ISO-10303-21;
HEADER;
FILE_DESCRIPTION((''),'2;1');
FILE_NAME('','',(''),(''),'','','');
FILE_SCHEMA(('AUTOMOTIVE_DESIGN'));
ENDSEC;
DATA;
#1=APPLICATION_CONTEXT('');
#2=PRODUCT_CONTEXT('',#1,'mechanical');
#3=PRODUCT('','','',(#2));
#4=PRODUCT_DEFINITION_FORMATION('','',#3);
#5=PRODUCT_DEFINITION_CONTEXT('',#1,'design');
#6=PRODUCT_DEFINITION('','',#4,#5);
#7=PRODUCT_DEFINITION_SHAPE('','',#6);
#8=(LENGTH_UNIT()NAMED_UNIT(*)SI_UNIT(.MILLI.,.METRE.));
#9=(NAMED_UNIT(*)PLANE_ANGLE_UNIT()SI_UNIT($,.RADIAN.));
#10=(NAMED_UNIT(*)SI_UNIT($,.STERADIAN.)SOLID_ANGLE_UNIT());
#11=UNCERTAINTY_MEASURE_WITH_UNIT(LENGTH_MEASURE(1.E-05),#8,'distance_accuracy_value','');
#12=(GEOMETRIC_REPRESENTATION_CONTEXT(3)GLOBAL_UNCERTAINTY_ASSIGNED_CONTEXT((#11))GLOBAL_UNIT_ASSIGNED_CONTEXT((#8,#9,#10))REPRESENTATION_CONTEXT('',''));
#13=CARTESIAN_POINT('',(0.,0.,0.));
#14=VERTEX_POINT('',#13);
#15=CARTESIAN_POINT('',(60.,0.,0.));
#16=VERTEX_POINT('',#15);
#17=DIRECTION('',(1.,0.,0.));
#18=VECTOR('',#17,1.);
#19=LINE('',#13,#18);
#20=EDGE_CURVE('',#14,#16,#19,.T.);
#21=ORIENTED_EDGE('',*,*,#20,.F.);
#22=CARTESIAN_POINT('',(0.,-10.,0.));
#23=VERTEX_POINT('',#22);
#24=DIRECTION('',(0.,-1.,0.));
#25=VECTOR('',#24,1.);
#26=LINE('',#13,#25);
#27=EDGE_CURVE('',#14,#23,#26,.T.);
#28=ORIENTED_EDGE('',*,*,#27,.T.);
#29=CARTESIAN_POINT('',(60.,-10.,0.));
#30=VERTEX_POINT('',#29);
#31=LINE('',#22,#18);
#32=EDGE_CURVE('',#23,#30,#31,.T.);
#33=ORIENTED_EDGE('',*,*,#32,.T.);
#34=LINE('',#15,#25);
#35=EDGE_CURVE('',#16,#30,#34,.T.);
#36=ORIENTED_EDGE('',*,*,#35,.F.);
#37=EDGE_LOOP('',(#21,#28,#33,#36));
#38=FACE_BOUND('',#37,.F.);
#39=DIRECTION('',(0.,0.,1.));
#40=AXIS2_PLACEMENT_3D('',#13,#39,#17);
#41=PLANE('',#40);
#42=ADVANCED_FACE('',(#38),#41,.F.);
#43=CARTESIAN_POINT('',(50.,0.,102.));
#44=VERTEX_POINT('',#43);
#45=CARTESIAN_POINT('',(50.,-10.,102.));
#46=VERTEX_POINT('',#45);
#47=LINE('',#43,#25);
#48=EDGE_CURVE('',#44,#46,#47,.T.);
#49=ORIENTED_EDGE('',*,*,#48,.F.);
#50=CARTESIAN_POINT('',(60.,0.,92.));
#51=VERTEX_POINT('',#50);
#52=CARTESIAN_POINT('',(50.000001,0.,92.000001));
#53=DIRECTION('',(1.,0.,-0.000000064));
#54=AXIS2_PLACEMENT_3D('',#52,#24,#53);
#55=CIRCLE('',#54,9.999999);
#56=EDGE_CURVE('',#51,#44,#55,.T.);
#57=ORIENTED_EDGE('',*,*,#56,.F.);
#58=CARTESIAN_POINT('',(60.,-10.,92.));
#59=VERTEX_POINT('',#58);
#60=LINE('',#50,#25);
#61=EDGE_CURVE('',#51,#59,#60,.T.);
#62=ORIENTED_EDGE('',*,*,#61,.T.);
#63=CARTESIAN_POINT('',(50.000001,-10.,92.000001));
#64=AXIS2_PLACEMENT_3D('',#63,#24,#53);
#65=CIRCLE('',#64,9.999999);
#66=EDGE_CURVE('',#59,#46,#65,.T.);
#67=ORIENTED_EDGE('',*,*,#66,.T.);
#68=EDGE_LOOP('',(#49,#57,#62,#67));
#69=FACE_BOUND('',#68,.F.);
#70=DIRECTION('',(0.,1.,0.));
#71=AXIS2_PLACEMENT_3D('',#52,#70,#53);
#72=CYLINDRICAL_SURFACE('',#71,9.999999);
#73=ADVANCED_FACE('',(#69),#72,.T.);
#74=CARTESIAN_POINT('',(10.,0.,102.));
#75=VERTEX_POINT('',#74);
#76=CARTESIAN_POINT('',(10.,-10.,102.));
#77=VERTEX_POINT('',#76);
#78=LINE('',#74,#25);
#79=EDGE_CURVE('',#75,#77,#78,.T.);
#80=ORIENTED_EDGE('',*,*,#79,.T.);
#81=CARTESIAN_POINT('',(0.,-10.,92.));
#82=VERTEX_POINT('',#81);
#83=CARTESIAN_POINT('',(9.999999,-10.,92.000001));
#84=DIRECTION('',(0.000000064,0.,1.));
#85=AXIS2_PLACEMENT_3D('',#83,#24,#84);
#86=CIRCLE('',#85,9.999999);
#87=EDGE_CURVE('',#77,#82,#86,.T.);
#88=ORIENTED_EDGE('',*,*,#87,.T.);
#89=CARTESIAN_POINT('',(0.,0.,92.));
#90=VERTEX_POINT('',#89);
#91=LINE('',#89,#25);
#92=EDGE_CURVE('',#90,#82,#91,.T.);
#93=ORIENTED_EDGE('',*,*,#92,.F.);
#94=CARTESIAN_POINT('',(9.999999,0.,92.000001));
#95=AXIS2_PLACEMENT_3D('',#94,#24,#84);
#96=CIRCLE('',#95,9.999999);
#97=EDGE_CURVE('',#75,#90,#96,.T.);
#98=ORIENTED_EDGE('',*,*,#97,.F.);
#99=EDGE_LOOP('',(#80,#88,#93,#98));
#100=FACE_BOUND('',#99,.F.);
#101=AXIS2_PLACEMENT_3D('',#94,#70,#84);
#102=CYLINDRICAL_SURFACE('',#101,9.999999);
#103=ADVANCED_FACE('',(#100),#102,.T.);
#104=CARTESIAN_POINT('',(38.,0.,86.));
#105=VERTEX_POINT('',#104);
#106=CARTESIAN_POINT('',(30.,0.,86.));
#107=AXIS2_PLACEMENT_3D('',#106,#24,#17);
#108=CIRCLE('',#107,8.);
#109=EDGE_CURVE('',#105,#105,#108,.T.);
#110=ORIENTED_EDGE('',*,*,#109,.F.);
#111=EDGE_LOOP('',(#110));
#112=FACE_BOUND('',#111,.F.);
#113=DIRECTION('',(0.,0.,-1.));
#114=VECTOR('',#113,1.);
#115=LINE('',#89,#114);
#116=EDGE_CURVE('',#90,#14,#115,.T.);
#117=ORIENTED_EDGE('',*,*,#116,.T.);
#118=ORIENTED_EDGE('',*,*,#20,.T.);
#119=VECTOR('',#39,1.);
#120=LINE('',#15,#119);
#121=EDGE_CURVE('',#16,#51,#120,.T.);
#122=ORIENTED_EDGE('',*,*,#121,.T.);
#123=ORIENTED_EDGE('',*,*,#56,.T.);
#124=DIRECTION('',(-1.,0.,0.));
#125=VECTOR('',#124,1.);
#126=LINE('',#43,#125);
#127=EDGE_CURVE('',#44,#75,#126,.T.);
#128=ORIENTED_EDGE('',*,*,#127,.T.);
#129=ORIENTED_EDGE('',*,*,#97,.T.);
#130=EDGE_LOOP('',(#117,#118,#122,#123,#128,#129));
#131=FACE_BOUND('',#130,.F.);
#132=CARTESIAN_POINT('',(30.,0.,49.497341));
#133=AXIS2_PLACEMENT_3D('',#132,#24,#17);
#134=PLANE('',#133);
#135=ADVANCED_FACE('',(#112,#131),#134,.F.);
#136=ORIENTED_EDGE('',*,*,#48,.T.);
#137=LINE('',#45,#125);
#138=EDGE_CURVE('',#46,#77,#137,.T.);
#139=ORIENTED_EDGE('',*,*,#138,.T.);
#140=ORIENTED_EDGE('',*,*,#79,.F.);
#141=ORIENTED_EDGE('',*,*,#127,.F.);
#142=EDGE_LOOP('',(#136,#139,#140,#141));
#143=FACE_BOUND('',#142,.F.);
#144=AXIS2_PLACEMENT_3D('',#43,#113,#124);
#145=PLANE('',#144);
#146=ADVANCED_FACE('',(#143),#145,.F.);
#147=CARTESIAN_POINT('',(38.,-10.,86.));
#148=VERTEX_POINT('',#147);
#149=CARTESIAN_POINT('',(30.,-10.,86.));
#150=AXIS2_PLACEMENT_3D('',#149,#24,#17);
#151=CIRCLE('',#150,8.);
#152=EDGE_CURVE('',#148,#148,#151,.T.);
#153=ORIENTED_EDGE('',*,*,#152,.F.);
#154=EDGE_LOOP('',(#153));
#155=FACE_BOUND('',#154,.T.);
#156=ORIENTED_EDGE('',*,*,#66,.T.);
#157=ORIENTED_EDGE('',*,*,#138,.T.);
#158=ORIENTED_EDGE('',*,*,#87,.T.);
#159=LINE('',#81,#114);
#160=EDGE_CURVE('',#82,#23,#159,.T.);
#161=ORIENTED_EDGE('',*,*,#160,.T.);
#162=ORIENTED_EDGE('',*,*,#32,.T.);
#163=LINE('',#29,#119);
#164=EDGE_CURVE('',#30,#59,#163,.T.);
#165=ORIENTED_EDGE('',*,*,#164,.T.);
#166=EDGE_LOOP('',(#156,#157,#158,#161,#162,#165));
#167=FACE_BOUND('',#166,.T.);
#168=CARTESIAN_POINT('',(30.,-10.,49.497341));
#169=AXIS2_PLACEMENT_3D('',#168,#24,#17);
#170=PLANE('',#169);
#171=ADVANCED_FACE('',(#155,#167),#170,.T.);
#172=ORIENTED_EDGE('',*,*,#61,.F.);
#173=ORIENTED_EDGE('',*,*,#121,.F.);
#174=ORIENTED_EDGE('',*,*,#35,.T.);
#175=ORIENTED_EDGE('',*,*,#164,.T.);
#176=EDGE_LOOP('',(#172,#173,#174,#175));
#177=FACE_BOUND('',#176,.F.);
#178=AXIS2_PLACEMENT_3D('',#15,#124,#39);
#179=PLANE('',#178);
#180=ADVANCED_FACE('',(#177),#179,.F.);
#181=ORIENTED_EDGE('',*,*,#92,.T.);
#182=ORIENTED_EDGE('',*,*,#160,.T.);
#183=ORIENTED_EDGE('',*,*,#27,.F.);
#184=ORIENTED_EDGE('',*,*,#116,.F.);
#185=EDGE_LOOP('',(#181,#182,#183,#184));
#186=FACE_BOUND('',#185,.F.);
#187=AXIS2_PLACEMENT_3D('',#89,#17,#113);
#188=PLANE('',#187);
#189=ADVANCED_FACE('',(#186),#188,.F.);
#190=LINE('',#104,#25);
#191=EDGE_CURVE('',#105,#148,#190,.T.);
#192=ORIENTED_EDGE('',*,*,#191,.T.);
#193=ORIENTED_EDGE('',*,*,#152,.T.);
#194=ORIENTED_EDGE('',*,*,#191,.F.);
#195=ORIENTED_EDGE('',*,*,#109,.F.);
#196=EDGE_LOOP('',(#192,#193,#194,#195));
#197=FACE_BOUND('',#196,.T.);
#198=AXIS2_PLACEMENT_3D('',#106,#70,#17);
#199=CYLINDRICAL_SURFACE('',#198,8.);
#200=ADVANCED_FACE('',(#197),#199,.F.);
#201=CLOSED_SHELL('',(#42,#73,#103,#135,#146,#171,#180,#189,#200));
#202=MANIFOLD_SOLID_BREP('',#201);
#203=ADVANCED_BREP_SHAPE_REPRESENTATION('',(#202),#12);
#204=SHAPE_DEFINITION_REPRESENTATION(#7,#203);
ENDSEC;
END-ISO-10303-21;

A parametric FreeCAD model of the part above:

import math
import FreeCAD as App
import Part
import Sketcher
from FreeCAD import Vector
Q = App.Units.Quantity

doc = App.newDocument("Part")
params = doc.addObject("Spreadsheet::Sheet", "Params")
for row, (alias, value) in enumerate([
    ("sketch1_diameter", "16 mm"),
    ("sketch1_radius", "9.999999 mm"),
    ("sketch1_width", "60 mm"),
    ("sketch1_height", "92 mm"),
    ("pad1_length", "10 mm"),
], start=1):
    params.set(f"A{row}", alias)
    params.set(f"B{row}", "=" + value)
    params.setAlias(f"B{row}", alias)

body = doc.addObject("PartDesign::Body", "Body")

# Sketch on XZ plane
sketch1 = body.newObject("Sketcher::SketchObject", "Sketch")
sketch1.AttachmentSupport = (doc.getObject("XZ_Plane"), [""])
sketch1.MapMode = "FlatFace"
sketch1.addGeometry([
    Part.LineSegment(Vector(0, 92, 0), Vector(0, 0, 0)),  # 0
    Part.LineSegment(Vector(0, 0, 0), Vector(60, 0, 0)),  # 1
    Part.LineSegment(Vector(60, 0, 0), Vector(60, 92, 0)),  # 2
    Part.ArcOfCircle(Part.Circle(Vector(50, 92, 0), Vector(0, 0, 1), 10), math.radians(0), math.radians(90)),  # 3
    Part.LineSegment(Vector(50, 102, 0), Vector(10, 102, 0)),  # 4
    Part.ArcOfCircle(Part.Circle(Vector(10, 92, 0), Vector(0, 0, 1), 10), math.radians(90), math.radians(180)),  # 5
    Part.Circle(Vector(30, 86, 0), Vector(0, 0, 1), 8),  # 6
], False)
sketch1.addConstraint([
    Sketcher.Constraint("Coincident", 0, 2, 1, 1),
    Sketcher.Constraint("Coincident", 1, 2, 2, 1),
    Sketcher.Constraint("Tangent", 2, 2, 3, 1),
    Sketcher.Constraint("Tangent", 3, 2, 4, 1),
    Sketcher.Constraint("Tangent", 4, 2, 5, 1),
    Sketcher.Constraint("Tangent", 5, 2, 0, 1),
    Sketcher.Constraint("Vertical", 0),
    Sketcher.Constraint("Horizontal", 1),
    Sketcher.Constraint("Vertical", 2),
    Sketcher.Constraint("Horizontal", 4),
    Sketcher.Constraint("Coincident", 0, 2, -1, 1),
    Sketcher.Constraint("Equal", 3, 5),
    Sketcher.Constraint("Diameter", 6, Q("16 mm")),
    Sketcher.Constraint("Radius", 3, Q("9.999999 mm")),
    Sketcher.Constraint("DistanceX", 1, 1, 1, 2, Q("60 mm")),
    Sketcher.Constraint("DistanceY", 0, 2, 0, 1, Q("92 mm")),
    Sketcher.Constraint("DistanceX", -1, 1, 6, 3, Q("30 mm")),
    Sketcher.Constraint("DistanceY", -1, 1, 6, 3, Q("86 mm")),
])
sketch1.setExpression("Constraints[12]", "Params.sketch1_diameter")
sketch1.setExpression("Constraints[13]", "Params.sketch1_radius")
sketch1.setExpression("Constraints[14]", "Params.sketch1_width")
sketch1.setExpression("Constraints[15]", "Params.sketch1_height")
pad1 = body.newObject("PartDesign::Pad", "Pad")
pad1.Profile = sketch1
pad1.setExpression("Length", "Params.pad1_length")

doc.recompute()
